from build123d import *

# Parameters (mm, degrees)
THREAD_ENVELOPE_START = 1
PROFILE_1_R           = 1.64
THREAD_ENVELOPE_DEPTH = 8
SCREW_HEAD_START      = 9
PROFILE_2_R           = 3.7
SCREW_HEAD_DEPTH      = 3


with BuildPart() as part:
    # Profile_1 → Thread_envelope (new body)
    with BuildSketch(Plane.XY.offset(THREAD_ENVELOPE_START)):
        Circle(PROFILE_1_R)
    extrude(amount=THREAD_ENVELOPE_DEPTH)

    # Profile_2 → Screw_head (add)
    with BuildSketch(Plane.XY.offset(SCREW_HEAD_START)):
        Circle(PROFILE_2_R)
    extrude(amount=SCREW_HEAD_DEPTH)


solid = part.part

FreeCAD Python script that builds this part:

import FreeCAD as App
import Part
import Sketcher
Q = App.Units.Quantity

doc = App.newDocument("Part")
body = doc.addObject("PartDesign::Body", "Body")

sketch1 = body.newObject("Sketcher::SketchObject", "Sketch")
sketch1.AttachmentSupport = (doc.getObject("XY_Plane"), [""])
sketch1.MapMode = "FlatFace"
sketch1.AttachmentOffset = App.Placement(App.Vector(0, 0, 1), App.Rotation())
sketch1.addGeometry(Part.Circle(App.Vector(0, 0, 0), App.Vector(0, 0, 1), 1.6), False)
sketch1.addConstraint([
    Sketcher.Constraint("Coincident", 0, 3, -1, 1),
    Sketcher.Constraint("Diameter", 0, Q("3.28 mm")),
])
pad1 = body.newObject("PartDesign::Pad", "Pad")
pad1.Profile = sketch1
pad1.Length = 8

sketch2 = body.newObject("Sketcher::SketchObject", "Sketch001")
sketch2.AttachmentSupport = (doc.getObject("XY_Plane"), [""])
sketch2.MapMode = "FlatFace"
sketch2.AttachmentOffset = App.Placement(App.Vector(0, 0, 9), App.Rotation())
sketch2.addGeometry(Part.Circle(App.Vector(0, 0, 0), App.Vector(0, 0, 1), 3.7), False)
sketch2.addConstraint([
    Sketcher.Constraint("Coincident", 0, 3, -1, 1),
    Sketcher.Constraint("Diameter", 0, Q("7.4 mm")),
])
pad2 = body.newObject("PartDesign::Pad", "Pad001")
pad2.Profile = sketch2
pad2.Length = 3

doc.recompute()
